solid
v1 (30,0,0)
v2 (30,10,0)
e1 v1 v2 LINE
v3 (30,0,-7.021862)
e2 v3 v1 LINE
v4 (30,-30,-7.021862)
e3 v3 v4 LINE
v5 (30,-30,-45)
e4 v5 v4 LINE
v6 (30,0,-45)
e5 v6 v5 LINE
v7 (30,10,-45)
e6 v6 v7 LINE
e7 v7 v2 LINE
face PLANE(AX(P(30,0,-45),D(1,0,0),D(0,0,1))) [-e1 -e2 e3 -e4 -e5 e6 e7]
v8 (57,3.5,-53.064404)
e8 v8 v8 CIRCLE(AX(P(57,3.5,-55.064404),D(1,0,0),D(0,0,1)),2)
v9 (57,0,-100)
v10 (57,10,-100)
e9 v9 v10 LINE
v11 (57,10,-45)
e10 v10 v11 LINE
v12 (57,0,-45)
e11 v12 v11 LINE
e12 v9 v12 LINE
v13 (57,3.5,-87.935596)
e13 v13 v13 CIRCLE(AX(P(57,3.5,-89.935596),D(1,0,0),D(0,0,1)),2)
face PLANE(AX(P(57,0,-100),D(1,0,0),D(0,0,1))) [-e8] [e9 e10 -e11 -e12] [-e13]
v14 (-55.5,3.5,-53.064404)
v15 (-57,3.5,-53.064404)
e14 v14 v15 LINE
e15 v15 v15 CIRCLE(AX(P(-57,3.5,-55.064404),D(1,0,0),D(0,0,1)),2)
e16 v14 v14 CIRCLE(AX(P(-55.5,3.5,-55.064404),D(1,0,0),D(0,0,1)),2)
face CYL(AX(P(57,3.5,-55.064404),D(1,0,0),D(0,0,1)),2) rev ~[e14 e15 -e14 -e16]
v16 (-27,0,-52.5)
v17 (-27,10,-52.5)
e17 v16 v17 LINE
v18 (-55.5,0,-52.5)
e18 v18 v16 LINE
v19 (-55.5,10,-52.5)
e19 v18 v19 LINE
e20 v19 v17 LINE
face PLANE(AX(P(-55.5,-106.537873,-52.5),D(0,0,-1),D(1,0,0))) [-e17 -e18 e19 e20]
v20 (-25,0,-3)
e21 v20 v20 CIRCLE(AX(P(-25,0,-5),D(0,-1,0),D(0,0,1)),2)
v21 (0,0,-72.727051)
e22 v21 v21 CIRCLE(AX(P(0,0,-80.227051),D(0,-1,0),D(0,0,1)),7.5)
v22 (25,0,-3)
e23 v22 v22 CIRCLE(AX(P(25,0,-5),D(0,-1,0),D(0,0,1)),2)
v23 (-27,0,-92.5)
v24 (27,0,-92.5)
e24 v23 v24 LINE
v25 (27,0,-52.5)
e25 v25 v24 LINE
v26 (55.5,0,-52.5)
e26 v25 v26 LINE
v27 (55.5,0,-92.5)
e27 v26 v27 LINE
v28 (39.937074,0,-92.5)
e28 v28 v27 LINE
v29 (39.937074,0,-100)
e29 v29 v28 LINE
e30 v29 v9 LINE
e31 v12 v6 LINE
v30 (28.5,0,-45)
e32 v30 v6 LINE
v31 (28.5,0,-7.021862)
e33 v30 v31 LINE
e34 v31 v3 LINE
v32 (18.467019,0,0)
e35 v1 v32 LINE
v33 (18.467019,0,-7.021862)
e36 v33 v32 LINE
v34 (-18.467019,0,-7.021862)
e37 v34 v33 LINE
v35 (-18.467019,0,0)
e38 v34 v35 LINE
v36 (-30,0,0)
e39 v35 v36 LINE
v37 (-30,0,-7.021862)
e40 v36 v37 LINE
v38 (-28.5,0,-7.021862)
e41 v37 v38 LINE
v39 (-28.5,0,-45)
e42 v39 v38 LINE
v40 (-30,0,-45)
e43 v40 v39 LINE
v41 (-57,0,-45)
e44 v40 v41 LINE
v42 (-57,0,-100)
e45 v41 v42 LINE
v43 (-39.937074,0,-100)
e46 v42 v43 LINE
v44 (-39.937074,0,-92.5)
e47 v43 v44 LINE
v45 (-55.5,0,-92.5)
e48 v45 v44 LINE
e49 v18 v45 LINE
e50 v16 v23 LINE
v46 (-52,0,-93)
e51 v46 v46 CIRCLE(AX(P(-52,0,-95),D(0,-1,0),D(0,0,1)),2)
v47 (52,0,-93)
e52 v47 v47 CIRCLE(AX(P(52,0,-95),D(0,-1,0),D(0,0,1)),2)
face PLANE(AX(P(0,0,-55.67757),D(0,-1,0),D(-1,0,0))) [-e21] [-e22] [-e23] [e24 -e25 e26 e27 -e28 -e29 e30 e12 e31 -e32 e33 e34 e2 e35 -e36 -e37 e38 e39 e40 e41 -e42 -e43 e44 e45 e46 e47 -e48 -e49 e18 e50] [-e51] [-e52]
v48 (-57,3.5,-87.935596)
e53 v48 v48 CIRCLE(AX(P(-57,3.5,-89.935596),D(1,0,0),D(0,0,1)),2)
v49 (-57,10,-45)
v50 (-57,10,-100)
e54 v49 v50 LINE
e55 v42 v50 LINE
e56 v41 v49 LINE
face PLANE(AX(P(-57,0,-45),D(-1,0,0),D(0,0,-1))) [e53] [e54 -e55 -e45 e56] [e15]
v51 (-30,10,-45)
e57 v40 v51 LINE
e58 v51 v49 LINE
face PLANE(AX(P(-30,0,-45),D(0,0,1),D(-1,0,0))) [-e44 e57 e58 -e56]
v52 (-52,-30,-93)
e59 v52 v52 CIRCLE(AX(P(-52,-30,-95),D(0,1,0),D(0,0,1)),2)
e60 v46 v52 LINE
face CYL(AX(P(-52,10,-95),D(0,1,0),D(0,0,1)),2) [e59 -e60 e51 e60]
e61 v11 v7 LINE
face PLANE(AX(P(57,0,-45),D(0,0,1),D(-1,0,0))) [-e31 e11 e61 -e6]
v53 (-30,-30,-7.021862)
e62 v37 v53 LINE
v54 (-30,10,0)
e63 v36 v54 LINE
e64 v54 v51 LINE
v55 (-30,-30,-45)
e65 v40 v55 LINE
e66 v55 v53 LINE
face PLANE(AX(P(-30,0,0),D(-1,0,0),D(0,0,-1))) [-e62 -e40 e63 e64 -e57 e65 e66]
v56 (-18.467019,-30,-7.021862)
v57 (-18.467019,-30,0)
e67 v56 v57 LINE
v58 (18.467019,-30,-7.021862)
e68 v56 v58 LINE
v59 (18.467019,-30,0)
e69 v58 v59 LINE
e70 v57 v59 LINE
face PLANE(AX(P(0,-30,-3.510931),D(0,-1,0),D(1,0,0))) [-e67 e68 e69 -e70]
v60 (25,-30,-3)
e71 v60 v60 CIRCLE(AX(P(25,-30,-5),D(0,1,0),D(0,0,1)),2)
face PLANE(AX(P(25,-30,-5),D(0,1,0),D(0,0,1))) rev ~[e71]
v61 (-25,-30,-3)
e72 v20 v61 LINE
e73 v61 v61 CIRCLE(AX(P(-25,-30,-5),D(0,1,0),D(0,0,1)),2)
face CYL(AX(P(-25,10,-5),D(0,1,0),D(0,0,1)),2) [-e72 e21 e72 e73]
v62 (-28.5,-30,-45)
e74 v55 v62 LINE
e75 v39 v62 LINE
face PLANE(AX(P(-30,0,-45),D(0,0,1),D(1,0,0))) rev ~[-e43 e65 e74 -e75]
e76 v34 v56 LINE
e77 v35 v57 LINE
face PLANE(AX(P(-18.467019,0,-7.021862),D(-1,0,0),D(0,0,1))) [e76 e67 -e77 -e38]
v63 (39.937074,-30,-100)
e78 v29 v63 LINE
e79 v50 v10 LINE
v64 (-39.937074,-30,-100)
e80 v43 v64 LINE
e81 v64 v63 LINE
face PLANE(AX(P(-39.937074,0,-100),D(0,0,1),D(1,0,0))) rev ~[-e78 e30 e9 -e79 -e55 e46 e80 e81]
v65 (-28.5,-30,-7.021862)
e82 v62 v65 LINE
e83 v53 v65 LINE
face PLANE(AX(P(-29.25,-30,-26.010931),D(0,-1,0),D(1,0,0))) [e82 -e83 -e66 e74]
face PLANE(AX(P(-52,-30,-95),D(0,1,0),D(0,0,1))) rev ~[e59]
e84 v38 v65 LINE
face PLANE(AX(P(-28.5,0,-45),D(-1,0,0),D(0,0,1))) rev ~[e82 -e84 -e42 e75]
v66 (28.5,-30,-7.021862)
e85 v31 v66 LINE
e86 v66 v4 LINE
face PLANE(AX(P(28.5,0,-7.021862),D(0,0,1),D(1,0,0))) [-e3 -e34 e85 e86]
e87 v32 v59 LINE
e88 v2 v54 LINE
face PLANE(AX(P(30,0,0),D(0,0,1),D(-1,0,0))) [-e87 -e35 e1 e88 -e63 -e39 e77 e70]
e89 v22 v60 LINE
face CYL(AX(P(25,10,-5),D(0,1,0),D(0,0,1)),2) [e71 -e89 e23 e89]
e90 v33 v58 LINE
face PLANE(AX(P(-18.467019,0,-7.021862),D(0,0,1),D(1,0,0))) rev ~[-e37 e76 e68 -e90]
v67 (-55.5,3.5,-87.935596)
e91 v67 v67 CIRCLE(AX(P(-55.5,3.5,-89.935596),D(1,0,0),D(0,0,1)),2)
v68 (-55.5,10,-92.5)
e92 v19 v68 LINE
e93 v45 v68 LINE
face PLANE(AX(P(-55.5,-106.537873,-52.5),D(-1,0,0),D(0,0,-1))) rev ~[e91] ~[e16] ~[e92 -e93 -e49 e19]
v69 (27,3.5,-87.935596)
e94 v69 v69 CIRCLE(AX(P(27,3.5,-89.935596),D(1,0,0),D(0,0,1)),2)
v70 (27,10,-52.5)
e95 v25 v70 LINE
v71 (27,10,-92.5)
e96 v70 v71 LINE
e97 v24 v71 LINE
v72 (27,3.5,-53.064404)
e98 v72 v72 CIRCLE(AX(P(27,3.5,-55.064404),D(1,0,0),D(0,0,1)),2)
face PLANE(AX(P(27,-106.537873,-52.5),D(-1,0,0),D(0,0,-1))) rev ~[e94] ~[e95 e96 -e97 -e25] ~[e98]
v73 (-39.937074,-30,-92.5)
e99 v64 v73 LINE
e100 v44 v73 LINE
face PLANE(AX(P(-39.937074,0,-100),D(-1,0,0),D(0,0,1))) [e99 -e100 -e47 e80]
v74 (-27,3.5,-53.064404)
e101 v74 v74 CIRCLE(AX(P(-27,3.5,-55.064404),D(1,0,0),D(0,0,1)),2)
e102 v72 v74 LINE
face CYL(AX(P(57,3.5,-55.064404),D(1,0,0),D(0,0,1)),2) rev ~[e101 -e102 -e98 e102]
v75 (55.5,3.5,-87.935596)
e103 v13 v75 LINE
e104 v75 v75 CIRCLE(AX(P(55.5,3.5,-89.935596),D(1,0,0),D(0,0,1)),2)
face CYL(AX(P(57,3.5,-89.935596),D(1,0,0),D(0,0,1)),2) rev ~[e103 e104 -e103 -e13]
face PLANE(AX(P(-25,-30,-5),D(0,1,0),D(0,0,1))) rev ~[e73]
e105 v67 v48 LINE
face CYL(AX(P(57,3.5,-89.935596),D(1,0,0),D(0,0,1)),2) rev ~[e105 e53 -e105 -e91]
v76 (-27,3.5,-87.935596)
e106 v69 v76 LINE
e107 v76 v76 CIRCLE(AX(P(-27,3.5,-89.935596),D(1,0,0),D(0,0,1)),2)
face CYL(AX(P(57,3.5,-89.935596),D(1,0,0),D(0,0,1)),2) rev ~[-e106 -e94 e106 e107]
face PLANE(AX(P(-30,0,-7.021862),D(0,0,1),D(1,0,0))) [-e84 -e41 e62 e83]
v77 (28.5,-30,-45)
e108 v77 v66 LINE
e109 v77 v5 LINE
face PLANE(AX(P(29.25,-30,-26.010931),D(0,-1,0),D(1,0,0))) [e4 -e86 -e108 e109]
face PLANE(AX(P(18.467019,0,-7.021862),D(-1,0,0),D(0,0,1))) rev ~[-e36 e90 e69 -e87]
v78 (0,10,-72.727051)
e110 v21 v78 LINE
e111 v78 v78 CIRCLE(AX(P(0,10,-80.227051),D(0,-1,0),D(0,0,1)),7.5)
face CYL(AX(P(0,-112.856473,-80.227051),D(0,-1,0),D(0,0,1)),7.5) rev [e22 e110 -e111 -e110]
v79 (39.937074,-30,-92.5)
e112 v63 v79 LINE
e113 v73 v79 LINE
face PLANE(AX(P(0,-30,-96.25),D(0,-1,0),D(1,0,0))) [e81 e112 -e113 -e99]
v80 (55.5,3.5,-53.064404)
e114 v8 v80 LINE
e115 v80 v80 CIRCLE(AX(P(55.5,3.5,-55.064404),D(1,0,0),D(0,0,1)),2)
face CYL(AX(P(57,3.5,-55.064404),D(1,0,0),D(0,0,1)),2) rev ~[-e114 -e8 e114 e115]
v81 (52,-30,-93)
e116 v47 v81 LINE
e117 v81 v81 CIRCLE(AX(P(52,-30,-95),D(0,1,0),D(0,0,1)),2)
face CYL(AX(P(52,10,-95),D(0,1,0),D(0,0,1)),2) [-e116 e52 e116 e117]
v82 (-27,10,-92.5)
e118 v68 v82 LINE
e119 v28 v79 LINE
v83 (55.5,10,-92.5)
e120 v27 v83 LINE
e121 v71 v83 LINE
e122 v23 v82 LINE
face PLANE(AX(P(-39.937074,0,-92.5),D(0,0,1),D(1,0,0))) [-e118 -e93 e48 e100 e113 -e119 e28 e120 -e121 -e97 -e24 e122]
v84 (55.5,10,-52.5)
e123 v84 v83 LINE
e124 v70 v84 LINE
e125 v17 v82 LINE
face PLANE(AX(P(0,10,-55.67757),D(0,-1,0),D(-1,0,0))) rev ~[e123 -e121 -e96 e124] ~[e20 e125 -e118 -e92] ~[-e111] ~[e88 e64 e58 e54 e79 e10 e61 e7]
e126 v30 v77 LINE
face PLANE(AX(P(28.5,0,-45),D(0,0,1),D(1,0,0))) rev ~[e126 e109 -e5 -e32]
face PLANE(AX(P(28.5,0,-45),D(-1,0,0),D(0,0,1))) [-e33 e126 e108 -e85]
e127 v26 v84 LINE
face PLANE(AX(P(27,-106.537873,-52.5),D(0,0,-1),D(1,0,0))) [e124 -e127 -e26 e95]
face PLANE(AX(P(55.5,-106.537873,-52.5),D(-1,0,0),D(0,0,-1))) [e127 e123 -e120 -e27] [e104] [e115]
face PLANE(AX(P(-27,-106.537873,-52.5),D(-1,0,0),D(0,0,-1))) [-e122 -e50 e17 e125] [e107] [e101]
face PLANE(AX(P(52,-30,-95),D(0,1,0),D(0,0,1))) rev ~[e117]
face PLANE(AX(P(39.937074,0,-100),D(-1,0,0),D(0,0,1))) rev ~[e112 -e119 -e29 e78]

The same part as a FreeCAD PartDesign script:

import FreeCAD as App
import Part
import Sketcher


def add_polygon(sketch, points):
    """Adds a closed chain of lines whose ends are joined by coincident constraints."""
    first, n = sketch.GeometryCount, len(points)
    for a, b in zip(points, points[1:] + points[:1]):
        sketch.addGeometry(Part.LineSegment(App.Vector(*a, 0), App.Vector(*b, 0)), False)
    for i in range(n):
        sketch.addConstraint(Sketcher.Constraint("Coincident", first + i, 2, first + (i + 1) % n, 1))

doc = App.newDocument("Part")
body = doc.addObject("PartDesign::Body", "Body")

# Sketch on XZ plane
sketch1 = body.newObject("Sketcher::SketchObject", "Sketch")
sketch1.AttachmentSupport = (doc.getObject("XZ_Plane"), [""])
sketch1.MapMode = "FlatFace"
add_polygon(sketch1, [(-30, 0), (30, 0), (30, -45), (57, -45), (57, -100), (-57, -100), (-57, -45), (-30, -45)])  # lines 0-7
sketch1.addConstraint(Sketcher.Constraint("Horizontal", 0))
sketch1.addConstraint(Sketcher.Constraint("Vertical", 1))
sketch1.addConstraint(Sketcher.Constraint("Horizontal", 2))
sketch1.addConstraint(Sketcher.Constraint("Vertical", 3))
sketch1.addConstraint(Sketcher.Constraint("Horizontal", 4))
sketch1.addConstraint(Sketcher.Constraint("Vertical", 5))
sketch1.addConstraint(Sketcher.Constraint("Horizontal", 6))
sketch1.addConstraint(Sketcher.Constraint("Vertical", 7))
sketch1.addConstraint(Sketcher.Constraint("Symmetric", 0, 2, 7, 2, -1, 1))
sketch1.addConstraint(Sketcher.Constraint("Symmetric", 2, 2, 5, 2, -2))
sketch1.addConstraint(Sketcher.Constraint("DistanceX", 0, 1, 0, 2, 60.0))
sketch1.addConstraint(Sketcher.Constraint("DistanceX", 2, 1, 2, 2, 27.0))
sketch1.addConstraint(Sketcher.Constraint("DistanceY", 1, 2, 1, 1, 45.0))
sketch1.addConstraint(Sketcher.Constraint("DistanceY", 3, 2, 3, 1, 55.0))
pad1 = body.newObject("PartDesign::Pad", "Pad")
pad1.Profile = sketch1
pad1.Length = 10
pad1.Reversed = True

# Sketch on XZ plane
sketch2 = body.newObject("Sketcher::SketchObject", "Sketch001")
sketch2.AttachmentSupport = (doc.getObject("XZ_Plane"), [""])
sketch2.MapMode = "FlatFace"
sketch2.AttachmentOffset = App.Placement(App.Vector(0, 0, -10), App.Rotation())
sketch2.addGeometry(Part.Circle(App.Vector(-52, -95, 0), App.Vector(0, 0, 1), 2), False)  # 0
sketch2.addGeometry(Part.Circle(App.Vector(52, -95, 0), App.Vector(0, 0, 1), 2), False)  # 1
sketch2.addGeometry(Part.Circle(App.Vector(-25, -5, 0), App.Vector(0, 0, 1), 2), False)  # 2
sketch2.addGeometry(Part.Circle(App.Vector(25, -5, 0), App.Vector(0, 0, 1), 2), False)  # 3
add_polygon(sketch2, [(-55.5, -92.5), (-55.5, -52.5), (-27, -52.5), (-27, -92.5)])  # lines 4-7
add_polygon(sketch2, [(27, -92.5), (27, -52.5), (55.5, -52.5), (55.5, -92.5)])  # lines 8-11
sketch2.addConstraint(Sketcher.Constraint("Vertical", 4))
sketch2.addConstraint(Sketcher.Constraint("Horizontal", 5))
sketch2.addConstraint(Sketcher.Constraint("Vertical", 6))
sketch2.addConstraint(Sketcher.Constraint("Horizontal", 7))
sketch2.addConstraint(Sketcher.Constraint("Vertical", 8))
sketch2.addConstraint(Sketcher.Constraint("Horizontal", 9))
sketch2.addConstraint(Sketcher.Constraint("Vertical", 10))
sketch2.addConstraint(Sketcher.Constraint("Horizontal", 11))
sketch2.addConstraint(Sketcher.Constraint("Equal", 0, 1))
sketch2.addConstraint(Sketcher.Constraint("Equal", 1, 2))
sketch2.addConstraint(Sketcher.Constraint("Equal", 2, 3))
sketch2.addConstraint(Sketcher.Constraint("Symmetric", 0, 3, 1, 3, -2))
sketch2.addConstraint(Sketcher.Constraint("Symmetric", 2, 3, 3, 3, -2))
sketch2.addConstraint(Sketcher.Constraint("Symmetric", 5, 2, 8, 2, -2))
sketch2.addConstraint(Sketcher.Constraint("Symmetric", 7, 2, 10, 2, -2))
sketch2.addConstraint(Sketcher.Constraint("Diameter", 0, 4.0))
sketch2.addConstraint(Sketcher.Constraint("DistanceY", 4, 1, 4, 2, 40.0))
sketch2.addConstraint(Sketcher.Constraint("DistanceX", 5, 1, 5, 2, 28.5))
sketch2.addConstraint(Sketcher.Constraint("DistanceX", 0, 3, -1, 1, 52.0))
sketch2.addConstraint(Sketcher.Constraint("DistanceY", 0, 3, -1, 1, 95.0))
sketch2.addConstraint(Sketcher.Constraint("DistanceX", 2, 3, -1, 1, 25.0))
sketch2.addConstraint(Sketcher.Constraint("DistanceY", 2, 3, -1, 1, 5.0))
sketch2.addConstraint(Sketcher.Constraint("DistanceX", 5, 2, -1, 1, 27.0))
sketch2.addConstraint(Sketcher.Constraint("DistanceY", 4, 2, -1, 1, 52.5))
pocket1 = body.newObject("PartDesign::Pocket", "Pocket")
pocket1.Profile = sketch2
pocket1.Type = "ThroughAll"
pocket1.Midplane = True

# Sketch on YZ plane
sketch3 = body.newObject("Sketcher::SketchObject", "Sketch002")
sketch3.AttachmentSupport = (doc.getObject("YZ_Plane"), [""])
sketch3.MapMode = "FlatFace"
sketch3.AttachmentOffset = App.Placement(App.Vector(0, 0, 57), App.Rotation())
sketch3.addGeometry(Part.Circle(App.Vector(3.5, -55.1, 0), App.Vector(0, 0, 1), 2), False)
sketch3.addGeometry(Part.Circle(App.Vector(3.5, -89.9, 0), App.Vector(0, 0, 1), 2), False)
sketch3.addConstraint(Sketcher.Constraint("Equal", 0, 1))
sketch3.addConstraint(Sketcher.Constraint("Vertical", 0, 3, 1, 3))
sketch3.addConstraint(Sketcher.Constraint("Diameter", 0, 4.0))
sketch3.addConstraint(Sketcher.Constraint("DistanceX", -1, 1, 0, 3, 3.5))
sketch3.addConstraint(Sketcher.Constraint("DistanceY", 1, 3, 0, 3, 34.871192))
sketch3.addConstraint(Sketcher.Constraint("DistanceY", 0, 3, -1, 1, 55.064404))
pocket2 = body.newObject("PartDesign::Pocket", "Pocket001")
pocket2.Profile = sketch3
pocket2.Type = "ThroughAll"

# Sketch on XZ plane
sketch4 = body.newObject("Sketcher::SketchObject", "Sketch003")
sketch4.AttachmentSupport = (doc.getObject("XZ_Plane"), [""])
sketch4.MapMode = "FlatFace"
sketch4.AttachmentOffset = App.Placement(App.Vector(0, 0, -10), App.Rotation())
sketch4.addGeometry(Part.Circle(App.Vector(-25, -5, 0), App.Vector(0, 0, 1), 2), False)
sketch4.addGeometry(Part.Circle(App.Vector(25, -5, 0), App.Vector(0, 0, 1), 2), False)
sketch4.addGeometry(Part.Circle(App.Vector(52, -95, 0), App.Vector(0, 0, 1), 2), False)
sketch4.addGeometry(Part.Circle(App.Vector(-52, -95, 0), App.Vector(0, 0, 1), 2), False)
sketch4.addConstraint(Sketcher.Constraint("Equal", 0, 1))
sketch4.addConstraint(Sketcher.Constraint("Equal", 1, 2))
sketch4.addConstraint(Sketcher.Constraint("Equal", 2, 3))
sketch4.addConstraint(Sketcher.Constraint("Symmetric", 0, 3, 1, 3, -2))
sketch4.addConstraint(Sketcher.Constraint("Symmetric", 2, 3, 3, 3, -2))
sketch4.addConstraint(Sketcher.Constraint("Diameter", 0, 4.0))
sketch4.addConstraint(Sketcher.Constraint("DistanceX", 0, 3, -1, 1, 25.0))
sketch4.addConstraint(Sketcher.Constraint("DistanceY", 0, 3, -1, 1, 5.0))
sketch4.addConstraint(Sketcher.Constraint("DistanceX", -1, 1, 2, 3, 52.0))
sketch4.addConstraint(Sketcher.Constraint("DistanceY", 2, 3, -1, 1, 95.0))
pad2 = body.newObject("PartDesign::Pad", "Pad001")
pad2.Profile = sketch4
pad2.Length = 40

# Sketch on XZ plane
sketch5 = body.newObject("Sketcher::SketchObject", "Sketch004")
sketch5.AttachmentSupport = (doc.getObject("XZ_Plane"), [""])
sketch5.MapMode = "FlatFace"
add_polygon(sketch5, [(-39.9, -92.5), (-39.9, -100), (39.9, -100), (39.9, -92.5)])  # lines 0-3
add_polygon(sketch5, [(-18.5, 0), (-18.5, -7), (18.5, -7), (18.5, 0)])  # lines 4-7
add_polygon(sketch5, [(-30, -7), (-30, -45), (-28.5, -45), (-28.5, -7)])  # lines 8-11
add_polygon(sketch5, [(28.5, -7), (28.5, -45), (30, -45), (30, -7)])  # lines 12-15
sketch5.addConstraint(Sketcher.Constraint("Vertical", 0))
sketch5.addConstraint(Sketcher.Constraint("Horizontal", 1))
sketch5.addConstraint(Sketcher.Constraint("Vertical", 2))
sketch5.addConstraint(Sketcher.Constraint("Horizontal", 3))
sketch5.addConstraint(Sketcher.Constraint("Vertical", 4))
sketch5.addConstraint(Sketcher.Constraint("Horizontal", 5))
sketch5.addConstraint(Sketcher.Constraint("Vertical", 6))
sketch5.addConstraint(Sketcher.Constraint("Horizontal", 7))
sketch5.addConstraint(Sketcher.Constraint("Vertical", 8))
sketch5.addConstraint(Sketcher.Constraint("Horizontal", 9))
sketch5.addConstraint(Sketcher.Constraint("Vertical", 10))
sketch5.addConstraint(Sketcher.Constraint("Horizontal", 11))
sketch5.addConstraint(Sketcher.Constraint("Vertical", 12))
sketch5.addConstraint(Sketcher.Constraint("Horizontal", 13))
sketch5.addConstraint(Sketcher.Constraint("Vertical", 14))
sketch5.addConstraint(Sketcher.Constraint("Horizontal", 15))
sketch5.addConstraint(Sketcher.Constraint("Symmetric", 6, 2, 7, 2, -1, 1))
sketch5.addConstraint(Sketcher.Constraint("Symmetric", 9, 2, 12, 2, -2))
sketch5.addConstraint(Sketcher.Constraint("Symmetric", 11, 2, 14, 2, -2))
sketch5.addConstraint(Sketcher.Constraint("Horizontal", 5, 2, 10, 2))
sketch5.addConstraint(Sketcher.Constraint("DistanceX", 9, 1, 9, 2, 1.5))
sketch5.addConstraint(Sketcher.Constraint("DistanceY", 0, 2, 0, 1, 7.5))
sketch5.addConstraint(Sketcher.Constraint("DistanceY", 0, 2, -1, 1, 100.0))
sketch5.addConstraint(Sketcher.Constraint("DistanceX", 8, 2, -1, 1, 30.0))
sketch5.addConstraint(Sketcher.Constraint("DistanceY", 8, 2, -1, 1, 45.0))
sketch5.addConstraint(Sketcher.Constraint("DistanceX", 5, 1, 5, 2, 36.934038))
sketch5.addConstraint(Sketcher.Constraint("DistanceX", 1, 1, 1, 2, 79.874147))
sketch5.addConstraint(Sketcher.Constraint("DistanceY", 4, 2, 4, 1, 7.021862))
sketch5.addConstraint(Sketcher.Constraint("DistanceX", 0, 2, -1, 1, 39.937074))
pad3 = body.newObject("PartDesign::Pad", "Pad002")
pad3.Profile = sketch5
pad3.Length = 30

# Sketch on XZ plane
sketch6 = body.newObject("Sketcher::SketchObject", "Sketch005")
sketch6.AttachmentSupport = (doc.getObject("XZ_Plane"), [""])
sketch6.MapMode = "FlatFace"
sketch6.AttachmentOffset = App.Placement(App.Vector(0, 0, -10), App.Rotation())
sketch6.addGeometry(Part.Circle(App.Vector(0, -80, 0), App.Vector(0, 0, 1), 8), False)
sketch6.addConstraint(Sketcher.Constraint("PointOnObject", 0, 3, -2))
sketch6.addConstraint(Sketcher.Constraint("Diameter", 0, 15.0))
sketch6.addConstraint(Sketcher.Constraint("DistanceY", 0, 3, -1, 1, 80.227051))
pocket3 = body.newObject("PartDesign::Pocket", "Pocket002")
pocket3.Profile = sketch6
pocket3.Type = "ThroughAll"
pocket3.Midplane = True

doc.recompute()
